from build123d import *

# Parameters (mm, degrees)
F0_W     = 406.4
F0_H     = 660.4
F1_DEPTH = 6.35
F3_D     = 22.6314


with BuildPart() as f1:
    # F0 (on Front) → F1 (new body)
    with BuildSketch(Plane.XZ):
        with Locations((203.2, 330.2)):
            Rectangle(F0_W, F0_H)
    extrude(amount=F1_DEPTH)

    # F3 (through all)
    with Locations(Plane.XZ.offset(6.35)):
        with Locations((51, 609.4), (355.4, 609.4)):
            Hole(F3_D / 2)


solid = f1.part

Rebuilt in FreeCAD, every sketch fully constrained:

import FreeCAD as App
import Part
import Sketcher
from FreeCAD import Vector
Q = App.Units.Quantity

doc = App.newDocument("Part")
body = doc.addObject("PartDesign::Body", "Body")

# Sketch on XZ plane
sketch1 = doc.addObject("Sketcher::SketchObject", "Sketch")
body.addObject(sketch1)
sketch1.AttachmentSupport = (doc.XZ_Plane, [""])
sketch1.MapMode = "FlatFace"
sketch1.addGeometry([
    Part.LineSegment(Vector(0, 660, 0), Vector(0, 0, 0)),
    Part.LineSegment(Vector(0, 0, 0), Vector(406, 0, 0)),
    Part.LineSegment(Vector(406, 0, 0), Vector(406, 660, 0)),
    Part.LineSegment(Vector(406, 660, 0), Vector(0, 660, 0)),
], False)
sketch1.addConstraint([
    Sketcher.Constraint("Coincident", 0, 2, 1, 1),
    Sketcher.Constraint("Coincident", 1, 2, 2, 1),
    Sketcher.Constraint("Coincident", 2, 2, 3, 1),
    Sketcher.Constraint("Coincident", 3, 2, 0, 1),
    Sketcher.Constraint("Vertical", 0),
    Sketcher.Constraint("Horizontal", 1),
    Sketcher.Constraint("Vertical", 2),
    Sketcher.Constraint("Horizontal", 3),
    Sketcher.Constraint("Coincident", 0, 2, -1, 1),
    Sketcher.Constraint("DistanceX", 1, 1, 1, 2, Q("16 in")),
    Sketcher.Constraint("DistanceY", 0, 2, 0, 1, Q("26 in")),
])
pad1 = doc.addObject("PartDesign::Pad", "Pad")
body.addObject(pad1)
pad1.Profile = sketch1
pad1.Length = Q("0.25 in")

# Sketch on XZ plane
sketch2 = doc.addObject("Sketcher::SketchObject", "Sketch001")
body.addObject(sketch2)
sketch2.AttachmentSupport = (doc.XZ_Plane, [""])
sketch2.MapMode = "FlatFace"
sketch2.AttachmentOffset = App.Placement(Vector(0, 0, 0.25 * 25.4), App.Rotation())
sketch2.addGeometry([
    Part.Circle(Vector(51, 609, 0), Vector(0, 0, 1), 11),
    Part.Circle(Vector(355, 609, 0), Vector(0, 0, 1), 11),
], False)
sketch2.addConstraint([
    Sketcher.Constraint("Equal", 0, 1),
    Sketcher.Constraint("Horizontal", 0, 3, 1, 3),
    Sketcher.Constraint("Diameter", 0, Q("0.891 in")),
    Sketcher.Constraint("DistanceX", -1, 1, 0, 3, Q("51 mm")),
    Sketcher.Constraint("DistanceY", -1, 1, 0, 3, Q("609.4 mm")),
    Sketcher.Constraint("DistanceX", -1, 1, 1, 3, Q("355.4 mm")),
])
doc.recompute()
hole = doc.addObject("PartDesign::Hole", "Hole")
body.addObject(hole)
hole.Profile = sketch2
hole.ThreadType = "None"
hole.Diameter = Q("0.891 in")
hole.DepthType = "ThroughAll"

doc.recompute()
